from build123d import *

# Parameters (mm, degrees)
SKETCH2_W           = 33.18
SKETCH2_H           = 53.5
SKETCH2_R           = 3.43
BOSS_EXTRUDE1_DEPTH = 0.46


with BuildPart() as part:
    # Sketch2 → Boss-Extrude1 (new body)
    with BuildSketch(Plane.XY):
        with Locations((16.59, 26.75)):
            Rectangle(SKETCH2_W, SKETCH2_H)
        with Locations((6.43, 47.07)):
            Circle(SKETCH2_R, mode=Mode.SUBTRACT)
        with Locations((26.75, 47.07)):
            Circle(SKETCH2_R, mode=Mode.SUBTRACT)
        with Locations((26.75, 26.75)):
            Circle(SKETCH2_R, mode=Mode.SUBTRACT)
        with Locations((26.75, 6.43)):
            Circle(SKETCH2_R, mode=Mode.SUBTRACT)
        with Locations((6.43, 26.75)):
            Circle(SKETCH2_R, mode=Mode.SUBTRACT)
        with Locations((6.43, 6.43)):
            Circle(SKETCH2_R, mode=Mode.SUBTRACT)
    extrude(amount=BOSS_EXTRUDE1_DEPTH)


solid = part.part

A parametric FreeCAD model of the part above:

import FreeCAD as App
import Part
import Sketcher

V = App.Vector

doc = App.newDocument("Part")
params = doc.addObject("Spreadsheet::Sheet", "Params")
for row, (alias, value) in enumerate([
    ("sketch1_diameter", "6.86 mm"),
    ("sketch1_height", "53.5 mm"),
    ("sketch1_width", "33.18 mm"),
    ("pad1_length", "0.46 mm"),
], start=1):
    params.set(f"A{row}", alias)
    params.set(f"B{row}", "=" + value)
    params.setAlias(f"B{row}", alias)

body = doc.addObject("PartDesign::Body", "Body")

# Sketch on XY plane
sketch1 = body.newObject("Sketcher::SketchObject", "Sketch")
sketch1.AttachmentSupport = (doc.getObject("XY_Plane"), [""])
sketch1.MapMode = "FlatFace"
sketch1.addGeometry([
    Part.LineSegment(V(0, 53.5, 0), V(0, 0, 0)),  # 0
    Part.LineSegment(V(0, 0, 0), V(33.2, 0, 0)),  # 1
    Part.LineSegment(V(33.2, 0, 0), V(33.2, 53.5, 0)),  # 2
    Part.LineSegment(V(33.2, 53.5, 0), V(0, 53.5, 0)),  # 3
    Part.Circle(V(6.4, 6.4, 0), V(0, 0, 1), 3.4),  # 4
    Part.Circle(V(26.8, 6.4, 0), V(0, 0, 1), 3.4),  # 5
    Part.Circle(V(6.4, 26.8, 0), V(0, 0, 1), 3.4),  # 6
    Part.Circle(V(6.4, 47.1, 0), V(0, 0, 1), 3.4),  # 7
    Part.Circle(V(26.8, 26.8, 0), V(0, 0, 1), 3.4),  # 8
    Part.Circle(V(26.8, 47.1, 0), V(0, 0, 1), 3.4),  # 9
], False)
sketch1.addConstraint([
    Sketcher.Constraint("Coincident", 0, 2, 1, 1),
    Sketcher.Constraint("Coincident", 1, 2, 2, 1),
    Sketcher.Constraint("Coincident", 2, 2, 3, 1),
    Sketcher.Constraint("Coincident", 3, 2, 0, 1),
    Sketcher.Constraint("Vertical", 0),
    Sketcher.Constraint("Horizontal", 1),
    Sketcher.Constraint("Vertical", 2),
    Sketcher.Constraint("Horizontal", 3),
    Sketcher.Constraint("Coincident", 0, 2, -1, 1),
    Sketcher.Constraint("Equal", 4, 5),
    Sketcher.Constraint("Equal", 5, 6),
    Sketcher.Constraint("Equal", 6, 7),
    Sketcher.Constraint("Equal", 7, 8),
    Sketcher.Constraint("Equal", 8, 9),
    Sketcher.Constraint("Horizontal", 4, 3, 5, 3),
    Sketcher.Constraint("Horizontal", 6, 3, 8, 3),
    Sketcher.Constraint("Horizontal", 7, 3, 9, 3),
    Sketcher.Constraint("Vertical", 4, 3, 6, 3),
    Sketcher.Constraint("Vertical", 6, 3, 7, 3),
    Sketcher.Constraint("Vertical", 5, 3, 8, 3),
    Sketcher.Constraint("Vertical", 8, 3, 9, 3),
    Sketcher.Constraint("Diameter", 4, 6.86),
    Sketcher.Constraint("DistanceY", 0, 2, 0, 1, 53.5),
    Sketcher.Constraint("DistanceX", 1, 1, 1, 2, 33.18),
    Sketcher.Constraint("DistanceX", -1, 1, 4, 3, 6.43),
    Sketcher.Constraint("DistanceY", -1, 1, 4, 3, 6.43),
    Sketcher.Constraint("DistanceX", -1, 1, 5, 3, 26.75),
    Sketcher.Constraint("DistanceY", -1, 1, 6, 3, 26.75),
    Sketcher.Constraint("DistanceY", -1, 1, 7, 3, 47.07),
])
sketch1.setExpression("Constraints[21]", "Params.sketch1_diameter")
sketch1.setExpression("Constraints[22]", "Params.sketch1_height")
sketch1.setExpression("Constraints[23]", "Params.sketch1_width")
pad1 = body.newObject("PartDesign::Pad", "Pad")
pad1.Profile = sketch1
pad1.setExpression("Length", "Params.pad1_length")

doc.recompute()
